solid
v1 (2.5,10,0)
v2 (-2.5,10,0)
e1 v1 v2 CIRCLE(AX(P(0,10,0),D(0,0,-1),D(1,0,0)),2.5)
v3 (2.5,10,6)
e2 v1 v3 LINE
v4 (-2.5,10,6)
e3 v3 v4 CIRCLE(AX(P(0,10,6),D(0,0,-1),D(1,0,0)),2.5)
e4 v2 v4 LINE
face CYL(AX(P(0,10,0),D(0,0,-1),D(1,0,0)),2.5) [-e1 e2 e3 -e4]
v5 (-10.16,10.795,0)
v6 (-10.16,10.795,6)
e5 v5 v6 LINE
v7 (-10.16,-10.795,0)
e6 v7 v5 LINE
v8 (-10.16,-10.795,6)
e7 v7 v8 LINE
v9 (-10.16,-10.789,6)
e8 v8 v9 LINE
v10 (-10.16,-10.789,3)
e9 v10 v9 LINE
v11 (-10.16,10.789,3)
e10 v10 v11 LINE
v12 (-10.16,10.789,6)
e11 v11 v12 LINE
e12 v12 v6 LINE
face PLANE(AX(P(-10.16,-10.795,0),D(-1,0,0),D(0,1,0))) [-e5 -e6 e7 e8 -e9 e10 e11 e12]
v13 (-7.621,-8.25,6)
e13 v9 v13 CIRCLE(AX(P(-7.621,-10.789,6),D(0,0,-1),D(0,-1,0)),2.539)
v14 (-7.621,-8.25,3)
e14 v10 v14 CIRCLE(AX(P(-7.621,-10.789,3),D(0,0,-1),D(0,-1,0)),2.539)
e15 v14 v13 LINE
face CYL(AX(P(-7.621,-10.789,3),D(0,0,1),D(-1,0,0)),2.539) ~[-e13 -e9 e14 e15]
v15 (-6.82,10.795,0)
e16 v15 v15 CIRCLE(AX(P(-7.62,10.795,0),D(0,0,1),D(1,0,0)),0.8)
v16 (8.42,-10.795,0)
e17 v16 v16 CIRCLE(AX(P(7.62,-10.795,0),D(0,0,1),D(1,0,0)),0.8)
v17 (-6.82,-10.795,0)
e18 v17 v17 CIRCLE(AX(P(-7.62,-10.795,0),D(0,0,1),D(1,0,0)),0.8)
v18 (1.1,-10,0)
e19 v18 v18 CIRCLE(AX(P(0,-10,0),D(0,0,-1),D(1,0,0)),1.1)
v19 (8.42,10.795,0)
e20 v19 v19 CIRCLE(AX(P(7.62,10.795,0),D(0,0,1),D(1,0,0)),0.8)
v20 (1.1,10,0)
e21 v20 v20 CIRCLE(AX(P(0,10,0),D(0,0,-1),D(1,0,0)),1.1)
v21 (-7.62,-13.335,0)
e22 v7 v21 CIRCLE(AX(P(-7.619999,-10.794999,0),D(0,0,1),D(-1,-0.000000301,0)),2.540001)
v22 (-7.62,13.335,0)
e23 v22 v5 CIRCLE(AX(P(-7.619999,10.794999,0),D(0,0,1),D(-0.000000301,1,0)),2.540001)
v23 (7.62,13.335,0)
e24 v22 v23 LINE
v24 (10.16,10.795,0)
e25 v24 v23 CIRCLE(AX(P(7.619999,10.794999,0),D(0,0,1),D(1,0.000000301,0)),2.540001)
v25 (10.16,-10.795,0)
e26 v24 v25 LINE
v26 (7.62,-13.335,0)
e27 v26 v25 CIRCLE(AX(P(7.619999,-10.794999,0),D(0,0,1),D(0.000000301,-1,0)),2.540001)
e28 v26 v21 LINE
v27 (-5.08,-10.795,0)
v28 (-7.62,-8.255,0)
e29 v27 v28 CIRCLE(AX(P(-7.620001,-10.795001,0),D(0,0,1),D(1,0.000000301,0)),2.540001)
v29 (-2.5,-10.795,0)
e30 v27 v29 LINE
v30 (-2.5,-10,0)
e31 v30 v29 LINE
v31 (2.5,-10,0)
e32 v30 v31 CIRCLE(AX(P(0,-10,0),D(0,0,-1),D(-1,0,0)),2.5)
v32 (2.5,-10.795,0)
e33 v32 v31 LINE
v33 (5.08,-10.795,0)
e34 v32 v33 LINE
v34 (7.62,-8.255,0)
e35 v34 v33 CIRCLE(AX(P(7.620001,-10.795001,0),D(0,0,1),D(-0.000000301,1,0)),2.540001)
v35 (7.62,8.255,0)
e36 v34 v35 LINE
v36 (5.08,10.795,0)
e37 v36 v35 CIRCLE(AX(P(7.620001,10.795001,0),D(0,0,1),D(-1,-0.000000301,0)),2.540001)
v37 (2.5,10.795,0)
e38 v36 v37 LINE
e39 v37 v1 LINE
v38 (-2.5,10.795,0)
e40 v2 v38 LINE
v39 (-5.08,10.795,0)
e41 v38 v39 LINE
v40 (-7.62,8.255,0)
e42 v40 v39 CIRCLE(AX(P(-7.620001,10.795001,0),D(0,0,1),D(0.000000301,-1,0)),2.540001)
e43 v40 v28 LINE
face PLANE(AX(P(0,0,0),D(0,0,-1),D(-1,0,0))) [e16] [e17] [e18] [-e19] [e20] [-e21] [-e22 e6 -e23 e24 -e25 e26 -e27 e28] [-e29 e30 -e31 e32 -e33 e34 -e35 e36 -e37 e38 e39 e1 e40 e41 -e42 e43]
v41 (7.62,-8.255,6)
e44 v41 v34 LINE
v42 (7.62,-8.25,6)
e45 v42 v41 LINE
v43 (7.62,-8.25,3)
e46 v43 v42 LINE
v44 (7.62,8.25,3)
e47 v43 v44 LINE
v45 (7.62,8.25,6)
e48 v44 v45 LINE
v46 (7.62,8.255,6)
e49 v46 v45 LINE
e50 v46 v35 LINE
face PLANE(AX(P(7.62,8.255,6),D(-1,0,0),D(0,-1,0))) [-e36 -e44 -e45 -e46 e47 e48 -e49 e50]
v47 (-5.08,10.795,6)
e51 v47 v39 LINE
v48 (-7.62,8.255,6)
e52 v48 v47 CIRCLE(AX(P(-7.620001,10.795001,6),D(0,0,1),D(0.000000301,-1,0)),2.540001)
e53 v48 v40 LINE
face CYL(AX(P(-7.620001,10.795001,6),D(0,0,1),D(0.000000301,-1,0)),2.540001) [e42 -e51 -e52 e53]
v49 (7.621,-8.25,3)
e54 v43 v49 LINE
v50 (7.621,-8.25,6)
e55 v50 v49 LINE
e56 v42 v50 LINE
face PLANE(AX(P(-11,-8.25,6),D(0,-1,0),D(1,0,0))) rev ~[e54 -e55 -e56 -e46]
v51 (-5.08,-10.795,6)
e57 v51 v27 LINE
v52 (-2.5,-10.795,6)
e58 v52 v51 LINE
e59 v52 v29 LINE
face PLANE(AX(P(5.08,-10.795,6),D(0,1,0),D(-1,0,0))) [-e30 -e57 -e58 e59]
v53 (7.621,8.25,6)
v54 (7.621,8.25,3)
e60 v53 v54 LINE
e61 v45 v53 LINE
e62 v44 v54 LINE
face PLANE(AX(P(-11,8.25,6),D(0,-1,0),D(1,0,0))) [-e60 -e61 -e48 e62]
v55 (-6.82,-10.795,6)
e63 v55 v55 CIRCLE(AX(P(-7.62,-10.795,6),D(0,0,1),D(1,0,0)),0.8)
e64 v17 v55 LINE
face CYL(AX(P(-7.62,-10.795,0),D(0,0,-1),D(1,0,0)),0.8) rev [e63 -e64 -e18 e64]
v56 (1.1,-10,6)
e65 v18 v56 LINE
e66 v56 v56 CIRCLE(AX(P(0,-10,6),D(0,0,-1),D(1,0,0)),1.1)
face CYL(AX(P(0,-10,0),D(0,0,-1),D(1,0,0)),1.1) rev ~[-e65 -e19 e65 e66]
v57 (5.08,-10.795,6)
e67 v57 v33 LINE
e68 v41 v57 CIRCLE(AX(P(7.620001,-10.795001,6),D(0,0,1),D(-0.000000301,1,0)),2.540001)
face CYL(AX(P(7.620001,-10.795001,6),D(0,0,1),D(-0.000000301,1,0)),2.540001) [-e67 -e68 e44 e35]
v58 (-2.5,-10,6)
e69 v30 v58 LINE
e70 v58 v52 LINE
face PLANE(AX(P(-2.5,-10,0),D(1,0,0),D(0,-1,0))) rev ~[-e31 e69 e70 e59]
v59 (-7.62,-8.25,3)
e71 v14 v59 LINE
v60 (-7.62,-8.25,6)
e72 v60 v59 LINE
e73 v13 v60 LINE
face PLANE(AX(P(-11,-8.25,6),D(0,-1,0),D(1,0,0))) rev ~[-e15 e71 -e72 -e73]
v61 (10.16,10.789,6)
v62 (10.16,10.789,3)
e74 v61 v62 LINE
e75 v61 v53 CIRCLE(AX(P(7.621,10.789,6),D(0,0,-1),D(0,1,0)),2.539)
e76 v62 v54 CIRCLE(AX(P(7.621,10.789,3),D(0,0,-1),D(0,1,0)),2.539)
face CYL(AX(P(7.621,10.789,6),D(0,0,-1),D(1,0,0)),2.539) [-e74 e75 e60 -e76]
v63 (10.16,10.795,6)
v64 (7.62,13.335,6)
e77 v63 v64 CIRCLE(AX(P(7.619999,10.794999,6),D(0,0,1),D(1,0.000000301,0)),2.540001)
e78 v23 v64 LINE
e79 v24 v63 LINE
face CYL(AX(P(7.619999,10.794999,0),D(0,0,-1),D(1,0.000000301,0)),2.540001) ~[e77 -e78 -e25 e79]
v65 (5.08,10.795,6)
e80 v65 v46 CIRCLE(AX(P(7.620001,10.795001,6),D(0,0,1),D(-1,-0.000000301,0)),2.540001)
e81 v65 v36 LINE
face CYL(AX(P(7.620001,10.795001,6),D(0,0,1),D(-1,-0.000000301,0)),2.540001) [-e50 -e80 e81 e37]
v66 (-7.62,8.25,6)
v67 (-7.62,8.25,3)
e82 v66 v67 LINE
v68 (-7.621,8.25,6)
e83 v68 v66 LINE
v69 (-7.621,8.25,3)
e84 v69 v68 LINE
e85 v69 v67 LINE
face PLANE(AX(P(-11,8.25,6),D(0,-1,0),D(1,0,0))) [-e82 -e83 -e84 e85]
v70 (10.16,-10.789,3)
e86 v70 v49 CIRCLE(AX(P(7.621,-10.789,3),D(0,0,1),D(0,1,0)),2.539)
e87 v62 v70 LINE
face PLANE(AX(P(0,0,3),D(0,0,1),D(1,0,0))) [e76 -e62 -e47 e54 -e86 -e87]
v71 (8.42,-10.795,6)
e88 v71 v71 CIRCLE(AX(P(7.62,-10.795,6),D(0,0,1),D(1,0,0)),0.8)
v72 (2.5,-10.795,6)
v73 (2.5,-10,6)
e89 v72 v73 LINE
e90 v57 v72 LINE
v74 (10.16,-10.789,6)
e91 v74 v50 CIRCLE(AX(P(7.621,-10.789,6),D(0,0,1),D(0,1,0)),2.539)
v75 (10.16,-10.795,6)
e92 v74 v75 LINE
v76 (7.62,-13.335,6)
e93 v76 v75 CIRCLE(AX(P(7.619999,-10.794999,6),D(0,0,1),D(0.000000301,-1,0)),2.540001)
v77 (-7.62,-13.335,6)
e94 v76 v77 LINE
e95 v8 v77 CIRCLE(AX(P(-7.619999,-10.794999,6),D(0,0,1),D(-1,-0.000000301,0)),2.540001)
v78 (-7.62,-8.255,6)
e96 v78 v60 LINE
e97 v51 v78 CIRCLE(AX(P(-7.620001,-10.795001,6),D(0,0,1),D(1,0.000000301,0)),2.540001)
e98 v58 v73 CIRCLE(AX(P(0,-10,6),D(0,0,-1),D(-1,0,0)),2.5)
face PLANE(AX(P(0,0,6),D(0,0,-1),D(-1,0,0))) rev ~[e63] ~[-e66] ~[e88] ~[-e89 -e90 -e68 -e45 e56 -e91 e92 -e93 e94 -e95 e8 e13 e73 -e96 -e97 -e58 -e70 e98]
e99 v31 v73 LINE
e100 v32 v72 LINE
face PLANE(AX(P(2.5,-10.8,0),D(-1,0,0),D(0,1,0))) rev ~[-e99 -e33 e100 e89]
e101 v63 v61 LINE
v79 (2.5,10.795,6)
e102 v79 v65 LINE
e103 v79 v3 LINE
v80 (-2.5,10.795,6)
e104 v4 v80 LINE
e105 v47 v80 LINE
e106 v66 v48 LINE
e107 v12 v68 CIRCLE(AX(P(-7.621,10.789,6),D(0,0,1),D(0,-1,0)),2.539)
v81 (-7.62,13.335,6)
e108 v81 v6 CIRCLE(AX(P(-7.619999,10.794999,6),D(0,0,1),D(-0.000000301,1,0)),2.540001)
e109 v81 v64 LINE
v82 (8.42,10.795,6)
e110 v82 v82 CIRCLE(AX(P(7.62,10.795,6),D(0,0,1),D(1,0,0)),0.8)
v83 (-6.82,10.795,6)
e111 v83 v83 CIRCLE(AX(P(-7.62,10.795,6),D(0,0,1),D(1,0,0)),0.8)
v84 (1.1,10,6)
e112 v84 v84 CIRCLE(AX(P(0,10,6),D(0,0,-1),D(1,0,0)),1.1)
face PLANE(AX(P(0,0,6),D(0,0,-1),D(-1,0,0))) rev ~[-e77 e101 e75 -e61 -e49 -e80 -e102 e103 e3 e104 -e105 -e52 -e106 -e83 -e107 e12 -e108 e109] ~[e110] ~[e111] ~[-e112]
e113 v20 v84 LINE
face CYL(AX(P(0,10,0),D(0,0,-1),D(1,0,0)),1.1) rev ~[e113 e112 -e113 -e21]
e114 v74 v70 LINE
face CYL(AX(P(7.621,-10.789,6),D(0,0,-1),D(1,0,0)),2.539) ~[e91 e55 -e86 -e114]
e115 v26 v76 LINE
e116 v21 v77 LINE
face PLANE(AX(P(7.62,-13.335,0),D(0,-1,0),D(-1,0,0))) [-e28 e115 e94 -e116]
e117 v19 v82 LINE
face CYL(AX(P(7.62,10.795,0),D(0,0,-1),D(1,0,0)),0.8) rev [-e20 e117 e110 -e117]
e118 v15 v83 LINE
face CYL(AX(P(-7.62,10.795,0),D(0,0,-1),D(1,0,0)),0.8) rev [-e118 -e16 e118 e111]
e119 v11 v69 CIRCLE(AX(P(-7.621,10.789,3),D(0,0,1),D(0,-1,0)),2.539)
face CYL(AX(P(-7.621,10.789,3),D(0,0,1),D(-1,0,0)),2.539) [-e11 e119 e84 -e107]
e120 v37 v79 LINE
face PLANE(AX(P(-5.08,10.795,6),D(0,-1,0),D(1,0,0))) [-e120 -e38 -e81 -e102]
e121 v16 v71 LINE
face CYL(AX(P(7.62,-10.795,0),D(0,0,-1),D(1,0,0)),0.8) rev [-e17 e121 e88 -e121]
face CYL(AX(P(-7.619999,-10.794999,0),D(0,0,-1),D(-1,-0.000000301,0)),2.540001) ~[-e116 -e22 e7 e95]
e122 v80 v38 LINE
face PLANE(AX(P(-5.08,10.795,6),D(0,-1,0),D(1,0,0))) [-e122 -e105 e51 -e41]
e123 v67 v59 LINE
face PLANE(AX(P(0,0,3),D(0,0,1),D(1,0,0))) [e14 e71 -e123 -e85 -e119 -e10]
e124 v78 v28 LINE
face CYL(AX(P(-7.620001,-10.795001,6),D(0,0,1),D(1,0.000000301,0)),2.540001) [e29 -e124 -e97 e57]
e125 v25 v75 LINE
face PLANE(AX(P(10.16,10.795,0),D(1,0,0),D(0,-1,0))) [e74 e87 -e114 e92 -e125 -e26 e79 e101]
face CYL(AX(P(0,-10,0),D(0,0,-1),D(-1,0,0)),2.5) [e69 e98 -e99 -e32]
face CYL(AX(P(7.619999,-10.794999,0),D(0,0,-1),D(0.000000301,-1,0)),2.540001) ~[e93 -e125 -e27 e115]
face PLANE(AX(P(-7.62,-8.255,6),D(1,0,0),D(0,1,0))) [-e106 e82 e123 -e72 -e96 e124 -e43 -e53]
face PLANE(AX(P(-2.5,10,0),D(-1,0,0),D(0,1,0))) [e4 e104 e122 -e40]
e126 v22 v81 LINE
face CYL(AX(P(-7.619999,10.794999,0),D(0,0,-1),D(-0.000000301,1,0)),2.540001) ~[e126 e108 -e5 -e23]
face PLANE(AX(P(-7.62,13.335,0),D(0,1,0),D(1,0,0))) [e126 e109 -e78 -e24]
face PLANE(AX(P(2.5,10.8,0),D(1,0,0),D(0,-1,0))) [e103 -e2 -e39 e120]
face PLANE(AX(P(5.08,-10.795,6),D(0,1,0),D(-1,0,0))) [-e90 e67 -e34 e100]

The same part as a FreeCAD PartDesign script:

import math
import FreeCAD as App
import Part
import Sketcher

V = App.Vector
Q = App.Units.Quantity


def edges_at(feature, points):
    """Names of the edges that pass closest to the given points."""
    edges = feature.Shape.Edges
    near = lambda p: min(range(len(edges)), key=lambda i: edges[i].distToShape(Part.Vertex(*p))[0])
    return sorted({f"Edge{near(p) + 1}" for p in points})

doc = App.newDocument("Part")
body = doc.addObject("PartDesign::Body", "Body")

# Sketch on XY plane
sketch1 = body.newObject("Sketcher::SketchObject", "Sketch")
sketch1.AttachmentSupport = (doc.getObject("XY_Plane"), [""])
sketch1.MapMode = "FlatFace"
sketch1.addGeometry([
    Part.LineSegment(V(7.6, 13.3, 0), V(-7.6, 13.3, 0)),  # 0
    Part.ArcOfCircle(Part.Circle(V(-7.6, 10.8, 0), V(0, 0, 1), 2.5), math.radians(90), math.radians(180)),  # 1
    Part.LineSegment(V(-10.2, 10.8, 0), V(-10.2, -10.8, 0)),  # 2
    Part.ArcOfCircle(Part.Circle(V(-7.6, -10.8, 0), V(0, 0, 1), 2.5), math.radians(-180), math.radians(-90)),  # 3
    Part.LineSegment(V(-7.6, -13.3, 0), V(7.6, -13.3, 0)),  # 4
    Part.ArcOfCircle(Part.Circle(V(7.6, -10.8, 0), V(0, 0, 1), 2.5), math.radians(-90), math.radians(0)),  # 5
    Part.LineSegment(V(10.2, -10.8, 0), V(10.2, 10.8, 0)),  # 6
    Part.ArcOfCircle(Part.Circle(V(7.6, 10.8, 0), V(0, 0, 1), 2.5), math.radians(0), math.radians(90)),  # 7
    Part.Circle(V(7.6, -10.8, 0), V(0, 0, 1), 0.8),  # 8
    Part.Circle(V(-7.6, -10.8, 0), V(0, 0, 1), 0.8),  # 9
    Part.Circle(V(7.6, 10.8, 0), V(0, 0, 1), 0.8),  # 10
    Part.Circle(V(-7.6, 10.8, 0), V(0, 0, 1), 0.8),  # 11
], False)
sketch1.addConstraint([
    Sketcher.Constraint("Tangent", 0, 2, 1, 1),
    Sketcher.Constraint("Tangent", 1, 2, 2, 1),
    Sketcher.Constraint("Tangent", 2, 2, 3, 1),
    Sketcher.Constraint("Tangent", 3, 2, 4, 1),
    Sketcher.Constraint("Tangent", 4, 2, 5, 1),
    Sketcher.Constraint("Tangent", 5, 2, 6, 1),
    Sketcher.Constraint("Tangent", 6, 2, 7, 1),
    Sketcher.Constraint("Tangent", 7, 2, 0, 1),
    Sketcher.Constraint("Horizontal", 0),
    Sketcher.Constraint("Vertical", 2),
    Sketcher.Constraint("Horizontal", 4),
    Sketcher.Constraint("Vertical", 6),
    Sketcher.Constraint("Coincident", 8, 3, 5, 3),
    Sketcher.Constraint("Coincident", 9, 3, 3, 3),
    Sketcher.Constraint("Coincident", 10, 3, 7, 3),
    Sketcher.Constraint("Coincident", 11, 3, 1, 3),
    Sketcher.Constraint("Equal", 1, 3),
    Sketcher.Constraint("Equal", 3, 5),
    Sketcher.Constraint("Equal", 5, 7),
    Sketcher.Constraint("Equal", 8, 9),
    Sketcher.Constraint("Equal", 9, 10),
    Sketcher.Constraint("Equal", 10, 11),
    Sketcher.Constraint("Symmetric", 1, 3, 5, 3, -1, 1),
    Sketcher.Constraint("Diameter", 8, Q("1.6 mm")),
    Sketcher.Constraint("Radius", 1, Q("2.540001 mm")),
    Sketcher.Constraint("DistanceX", 0, 2, 0, 1, Q("15.24 mm")),
    Sketcher.Constraint("DistanceY", 2, 2, 2, 1, Q("21.59 mm")),
])
pad1 = body.newObject("PartDesign::Pad", "Pad")
pad1.Profile = sketch1
pad1.Length = 6

# Sketch on XY plane
sketch2 = body.newObject("Sketcher::SketchObject", "Sketch001")
sketch2.AttachmentSupport = (doc.getObject("XY_Plane"), [""])
sketch2.MapMode = "FlatFace"
sketch2.AttachmentOffset = App.Placement(V(0, 0, 6), App.Rotation())
sketch2.addGeometry([
    Part.LineSegment(V(5.1, 10.8, 0), V(-5.1, 10.8, 0)),  # 0
    Part.ArcOfCircle(Part.Circle(V(-7.6, 10.8, 0), V(0, 0, 1), 2.5), math.radians(-90), math.radians(0)),  # 1
    Part.LineSegment(V(-7.6, 8.3, 0), V(-7.6, -8.3, 0)),  # 2
    Part.ArcOfCircle(Part.Circle(V(-7.6, -10.8, 0), V(0, 0, 1), 2.5), math.radians(0), math.radians(90)),  # 3
    Part.LineSegment(V(-5.1, -10.8, 0), V(5.1, -10.8, 0)),  # 4
    Part.ArcOfCircle(Part.Circle(V(7.6, -10.8, 0), V(0, 0, 1), 2.5), math.radians(90), math.radians(180)),  # 5
    Part.LineSegment(V(7.6, -8.3, 0), V(7.6, 8.3, 0)),  # 6
    Part.ArcOfCircle(Part.Circle(V(7.6, 10.8, 0), V(0, 0, 1), 2.5), math.radians(-180), math.radians(-90)),  # 7
], False)
sketch2.addConstraint([
    Sketcher.Constraint("Coincident", 0, 2, 1, 2),
    Sketcher.Constraint("Coincident", 1, 1, 2, 1),
    Sketcher.Constraint("Coincident", 2, 2, 3, 2),
    Sketcher.Constraint("Coincident", 3, 1, 4, 1),
    Sketcher.Constraint("Coincident", 4, 2, 5, 2),
    Sketcher.Constraint("Coincident", 5, 1, 6, 1),
    Sketcher.Constraint("Coincident", 6, 2, 7, 2),
    Sketcher.Constraint("Coincident", 7, 1, 0, 1),
    Sketcher.Constraint("Horizontal", 0),
    Sketcher.Constraint("Vertical", 2),
    Sketcher.Constraint("Horizontal", 4),
    Sketcher.Constraint("Vertical", 6),
    Sketcher.Constraint("Equal", 1, 3),
    Sketcher.Constraint("Equal", 3, 5),
    Sketcher.Constraint("Equal", 5, 7),
    Sketcher.Constraint("Symmetric", 1, 3, 5, 3, -1, 1),
    Sketcher.Constraint("Symmetric", 3, 3, 7, 3, -1, 1),
    Sketcher.Constraint("Symmetric", 3, 3, 5, 3, -2),
    Sketcher.Constraint("Horizontal", 7, 3, 0, 2),
    Sketcher.Constraint("Horizontal", 5, 3, 3, 1),
    Sketcher.Constraint("Vertical", 3, 3, 1, 1),
    Sketcher.Constraint("Vertical", 7, 3, 5, 1),
    Sketcher.Constraint("Radius", 1, Q("2.540001 mm")),
    Sketcher.Constraint("DistanceX", 0, 2, 0, 1, Q("10.16 mm")),
    Sketcher.Constraint("DistanceY", 2, 2, 2, 1, Q("16.51 mm")),
])
pocket1 = body.newObject("PartDesign::Pocket", "Pocket")
pocket1.Profile = sketch2
pocket1.Type = "ThroughAll"

# Sketch on XY plane
sketch3 = body.newObject("Sketcher::SketchObject", "Sketch002")
sketch3.AttachmentSupport = (doc.getObject("XY_Plane"), [""])
sketch3.MapMode = "FlatFace"
sketch3.AttachmentOffset = App.Placement(V(0, 0, 6), App.Rotation())
sketch3.addGeometry([
    Part.LineSegment(V(-11, 8, 0), V(-11, -8, 0)),
    Part.LineSegment(V(-11, -8, 0), V(11, -8, 0)),
    Part.LineSegment(V(11, -8, 0), V(11, 8, 0)),
    Part.LineSegment(V(11, 8, 0), V(-11, 8, 0)),
], False)
sketch3.addConstraint([
    Sketcher.Constraint("Coincident", 0, 2, 1, 1),
    Sketcher.Constraint("Coincident", 1, 2, 2, 1),
    Sketcher.Constraint("Coincident", 2, 2, 3, 1),
    Sketcher.Constraint("Coincident", 3, 2, 0, 1),
    Sketcher.Constraint("Vertical", 0),
    Sketcher.Constraint("Horizontal", 1),
    Sketcher.Constraint("Vertical", 2),
    Sketcher.Constraint("Horizontal", 3),
    Sketcher.Constraint("Symmetric", 0, 2, 2, 2, -1, 1),
    Sketcher.Constraint("DistanceX", 1, 1, 1, 2, Q("22 mm")),
    Sketcher.Constraint("DistanceY", 0, 2, 0, 1, Q("16.5 mm")),
])
pocket2 = body.newObject("PartDesign::Pocket", "Pocket001")
pocket2.Profile = sketch3
pocket2.Length = 3
doc.recompute()

fillet = body.newObject("PartDesign::Fillet", "Fillet")
fillet.Base = (pocket2, edges_at(pocket2, [
    (-10.16, 8.25, 4.5),
    (-10.16, -8.25, 4.5),
    (10.16, 8.25, 4.5),
    (10.16, -8.25, 4.5),
]))
fillet.Radius = 2.539

# Sketch on XY plane
sketch4 = body.newObject("Sketcher::SketchObject", "Sketch003")
sketch4.AttachmentSupport = (doc.getObject("XY_Plane"), [""])
sketch4.MapMode = "FlatFace"
sketch4.addGeometry([
    Part.LineSegment(V(2.5, -10.8, 0), V(-2.5, -10.8, 0)),  # 0
    Part.LineSegment(V(-2.5, -10.8, 0), V(-2.5, -10, 0)),  # 1
    Part.ArcOfCircle(Part.Circle(V(0, -10, 0), V(0, 0, 1), 2.5), math.radians(0), math.radians(180)),  # 2
    Part.LineSegment(V(2.5, -10, 0), V(2.5, -10.8, 0)),  # 3
    Part.LineSegment(V(-2.5, 10.8, 0), V(2.5, 10.8, 0)),  # 4
    Part.LineSegment(V(2.5, 10.8, 0), V(2.5, 10, 0)),  # 5
    Part.ArcOfCircle(Part.Circle(V(0, 10, 0), V(0, 0, 1), 2.5), math.radians(180), math.radians(360)),  # 6
    Part.LineSegment(V(-2.5, 10, 0), V(-2.5, 10.8, 0)),  # 7
], False)
sketch4.addConstraint([
    Sketcher.Constraint("Coincident", 0, 2, 1, 1),
    Sketcher.Constraint("Tangent", 1, 2, 2, 2),
    Sketcher.Constraint("Tangent", 2, 1, 3, 1),
    Sketcher.Constraint("Coincident", 3, 2, 0, 1),
    Sketcher.Constraint("Coincident", 4, 2, 5, 1),
    Sketcher.Constraint("Tangent", 5, 2, 6, 2),
    Sketcher.Constraint("Tangent", 6, 1, 7, 1),
    Sketcher.Constraint("Coincident", 7, 2, 4, 1),
    Sketcher.Constraint("Horizontal", 0),
    Sketcher.Constraint("Vertical", 1),
    Sketcher.Constraint("Vertical", 3),
    Sketcher.Constraint("Horizontal", 4),
    Sketcher.Constraint("Vertical", 5),
    Sketcher.Constraint("Vertical", 7),
    Sketcher.Constraint("Equal", 2, 6),
    Sketcher.Constraint("Symmetric", 2, 3, 6, 3, -1, 1),
    Sketcher.Constraint("Symmetric", 3, 2, 4, 2, -1),
    Sketcher.Constraint("Radius", 2, Q("2.5 mm")),
    Sketcher.Constraint("DistanceY", 1, 1, 1, 2, Q("0.8 mm")),
    Sketcher.Constraint("DistanceY", 2, 3, -1, 1, Q("10 mm")),
])
pad2 = body.newObject("PartDesign::Pad", "Pad001")
pad2.Profile = sketch4
pad2.Length = 6

# Sketch on XY plane
sketch5 = body.newObject("Sketcher::SketchObject", "Sketch004")
sketch5.AttachmentSupport = (doc.getObject("XY_Plane"), [""])
sketch5.MapMode = "FlatFace"
sketch5.addGeometry([
    Part.Circle(V(0, -10, 0), V(0, 0, 1), 1.1),
    Part.Circle(V(0, 10, 0), V(0, 0, 1), 1.1),
], False)
sketch5.addConstraint([
    Sketcher.Constraint("Equal", 0, 1),
    Sketcher.Constraint("Symmetric", 0, 3, 1, 3, -1, 1),
    Sketcher.Constraint("PointOnObject", 0, 3, -2),
    Sketcher.Constraint("Diameter", 0, Q("2.2 mm")),
    Sketcher.Constraint("DistanceY", 0, 3, -1, 1, Q("10 mm")),
])
pocket3 = body.newObject("PartDesign::Pocket", "Pocket002")
pocket3.Profile = sketch5
pocket3.Type = "ThroughAll"
pocket3.Reversed = True

doc.recompute()
